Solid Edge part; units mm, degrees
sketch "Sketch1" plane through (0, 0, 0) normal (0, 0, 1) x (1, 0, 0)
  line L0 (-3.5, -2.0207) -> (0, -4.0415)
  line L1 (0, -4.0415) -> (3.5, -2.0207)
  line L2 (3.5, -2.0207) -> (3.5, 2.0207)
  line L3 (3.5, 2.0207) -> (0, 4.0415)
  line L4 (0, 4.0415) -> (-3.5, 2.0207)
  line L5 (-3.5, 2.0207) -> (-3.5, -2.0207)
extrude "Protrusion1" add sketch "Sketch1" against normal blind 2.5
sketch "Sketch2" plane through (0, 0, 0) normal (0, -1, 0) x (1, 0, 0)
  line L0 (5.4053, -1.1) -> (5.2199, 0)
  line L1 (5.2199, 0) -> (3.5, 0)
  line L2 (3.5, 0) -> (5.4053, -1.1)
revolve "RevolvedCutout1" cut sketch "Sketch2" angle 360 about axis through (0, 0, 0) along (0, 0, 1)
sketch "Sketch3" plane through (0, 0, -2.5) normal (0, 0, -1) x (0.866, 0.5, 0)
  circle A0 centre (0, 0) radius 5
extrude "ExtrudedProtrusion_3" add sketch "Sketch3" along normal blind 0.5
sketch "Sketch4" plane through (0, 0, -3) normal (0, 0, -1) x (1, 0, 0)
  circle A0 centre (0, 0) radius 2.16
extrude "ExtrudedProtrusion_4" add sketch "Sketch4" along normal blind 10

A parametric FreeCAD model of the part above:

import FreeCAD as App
import Part
import Sketcher

V = App.Vector
Q = App.Units.Quantity


def add_polygon(sketch, points):
    """Adds a closed chain of lines whose ends are joined by coincident constraints."""
    first, n = sketch.GeometryCount, len(points)
    for a, b in zip(points, points[1:] + points[:1]):
        sketch.addGeometry(Part.LineSegment(App.Vector(*a, 0), App.Vector(*b, 0)), False)
    for i in range(n):
        sketch.addConstraint(Sketcher.Constraint("Coincident", first + i, 2, first + (i + 1) % n, 1))

doc = App.newDocument("Part")
body = doc.addObject("PartDesign::Body", "Body")

# Sketch on XY plane
sketch1 = body.newObject("Sketcher::SketchObject", "Sketch")
sketch1.AttachmentSupport = (doc.getObject("XY_Plane"), [""])
sketch1.MapMode = "FlatFace"
add_polygon(sketch1, [(-3.5, 2), (-3.5, -2), (0, -4), (3.5, -2), (3.5, 2), (0, 4)])  # lines 0-5
sketch1.addConstraint([
    Sketcher.Constraint("Vertical", 0),
    Sketcher.Constraint("Vertical", 3),
    Sketcher.Constraint("Symmetric", 0, 2, 3, 2, -1, 1),
    Sketcher.Constraint("Symmetric", 1, 2, 4, 2, -1, 1),
    Sketcher.Constraint("PointOnObject", 1, 2, -2),
    Sketcher.Constraint("Parallel", 2, 5),
    Sketcher.Constraint("Horizontal", 0, 2, 2, 2),
    Sketcher.Constraint("Angle", 1, Q("-30.001 deg")),
    Sketcher.Constraint("DistanceX", 0, 2, 2, 2, 7.0),
    Sketcher.Constraint("DistanceY", 0, 2, 0, 1, 4.0414),
])
pad1 = body.newObject("PartDesign::Pad", "Pad")
pad1.Profile = sketch1
pad1.Length = 2.5
pad1.Reversed = True

# Sketch on XZ plane
sketch2 = body.newObject("Sketcher::SketchObject", "Sketch001")
sketch2.AttachmentSupport = (doc.getObject("XZ_Plane"), [""])
sketch2.MapMode = "FlatFace"
add_polygon(sketch2, [(3.5, 0), (5.4, -1.1), (5.2, 0)])  # lines 0-2
sketch2.addConstraint([
    Sketcher.Constraint("Horizontal", 2),
    Sketcher.Constraint("PointOnObject", 1, 2, -1),
    Sketcher.Constraint("Angle", 0, Q("-29.9994 deg")),
    Sketcher.Constraint("Distance", 0, 2.2),
    Sketcher.Constraint("DistanceX", 2, 2, 2, 1, 1.72),
    Sketcher.Constraint("DistanceX", -1, 1, 2, 2, 3.5),
])
groove = body.newObject("PartDesign::Groove", "Groove")
groove.Profile = sketch2
groove.ReferenceAxis = (sketch2, ["V_Axis"])
groove.Angle = 360

# Sketch on XY plane
sketch3 = body.newObject("Sketcher::SketchObject", "Sketch002")
sketch3.AttachmentSupport = (doc.getObject("XY_Plane"), [""])
sketch3.MapMode = "FlatFace"
sketch3.AttachmentOffset = App.Placement(V(0, 0, -2.5), App.Rotation())
sketch3.addGeometry(Part.Circle(V(0, 0, 0), V(0, 0, 1), 5), False)
sketch3.addConstraint([
    Sketcher.Constraint("Coincident", 0, 3, -1, 1),
    Sketcher.Constraint("Diameter", 0, 10.0),
])
pad2 = body.newObject("PartDesign::Pad", "Pad001")
pad2.Profile = sketch3
pad2.Length = 0.5
pad2.Reversed = True

# Sketch on XY plane
sketch4 = body.newObject("Sketcher::SketchObject", "Sketch003")
sketch4.AttachmentSupport = (doc.getObject("XY_Plane"), [""])
sketch4.MapMode = "FlatFace"
sketch4.AttachmentOffset = App.Placement(V(0, 0, -3), App.Rotation())
sketch4.addGeometry(Part.Circle(V(0, 0, 0), V(0, 0, 1), 2.2), False)
sketch4.addConstraint([
    Sketcher.Constraint("Coincident", 0, 3, -1, 1),
    Sketcher.Constraint("Diameter", 0, 4.32),
])
pad3 = body.newObject("PartDesign::Pad", "Pad002")
pad3.Profile = sketch4
pad3.Length = 10
pad3.Reversed = True

doc.recompute()
